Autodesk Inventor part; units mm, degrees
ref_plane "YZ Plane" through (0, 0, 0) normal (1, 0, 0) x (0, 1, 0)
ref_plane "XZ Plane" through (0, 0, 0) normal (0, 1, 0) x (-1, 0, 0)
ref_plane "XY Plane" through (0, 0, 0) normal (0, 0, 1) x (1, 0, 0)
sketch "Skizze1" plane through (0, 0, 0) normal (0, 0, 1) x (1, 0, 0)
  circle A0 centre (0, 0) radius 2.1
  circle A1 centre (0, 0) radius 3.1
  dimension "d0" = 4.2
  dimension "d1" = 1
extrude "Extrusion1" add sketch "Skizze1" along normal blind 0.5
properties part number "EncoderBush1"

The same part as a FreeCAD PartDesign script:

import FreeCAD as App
import Part
import Sketcher

V = App.Vector

doc = App.newDocument("Part")
body = doc.addObject("PartDesign::Body", "Body")

# Sketch on XY plane
sketch1 = body.newObject("Sketcher::SketchObject", "Sketch")
sketch1.AttachmentSupport = (doc.getObject("XY_Plane"), [""])
sketch1.MapMode = "FlatFace"
sketch1.addGeometry([
    Part.Circle(V(0, 0, 0), V(0, 0, 1), 3.1),
    Part.Circle(V(0, 0, 0), V(0, 0, 1), 2.1),
], False)
sketch1.addConstraint([
    Sketcher.Constraint("Coincident", 0, 3, -1, 1),
    Sketcher.Constraint("Coincident", 1, 3, -1, 1),
    Sketcher.Constraint("Diameter", 1, 4.2),
    Sketcher.Constraint("Diameter", 0, 6.2),
])
pad1 = body.newObject("PartDesign::Pad", "Pad")
pad1.Profile = sketch1
pad1.Length = 0.5

doc.recompute()
